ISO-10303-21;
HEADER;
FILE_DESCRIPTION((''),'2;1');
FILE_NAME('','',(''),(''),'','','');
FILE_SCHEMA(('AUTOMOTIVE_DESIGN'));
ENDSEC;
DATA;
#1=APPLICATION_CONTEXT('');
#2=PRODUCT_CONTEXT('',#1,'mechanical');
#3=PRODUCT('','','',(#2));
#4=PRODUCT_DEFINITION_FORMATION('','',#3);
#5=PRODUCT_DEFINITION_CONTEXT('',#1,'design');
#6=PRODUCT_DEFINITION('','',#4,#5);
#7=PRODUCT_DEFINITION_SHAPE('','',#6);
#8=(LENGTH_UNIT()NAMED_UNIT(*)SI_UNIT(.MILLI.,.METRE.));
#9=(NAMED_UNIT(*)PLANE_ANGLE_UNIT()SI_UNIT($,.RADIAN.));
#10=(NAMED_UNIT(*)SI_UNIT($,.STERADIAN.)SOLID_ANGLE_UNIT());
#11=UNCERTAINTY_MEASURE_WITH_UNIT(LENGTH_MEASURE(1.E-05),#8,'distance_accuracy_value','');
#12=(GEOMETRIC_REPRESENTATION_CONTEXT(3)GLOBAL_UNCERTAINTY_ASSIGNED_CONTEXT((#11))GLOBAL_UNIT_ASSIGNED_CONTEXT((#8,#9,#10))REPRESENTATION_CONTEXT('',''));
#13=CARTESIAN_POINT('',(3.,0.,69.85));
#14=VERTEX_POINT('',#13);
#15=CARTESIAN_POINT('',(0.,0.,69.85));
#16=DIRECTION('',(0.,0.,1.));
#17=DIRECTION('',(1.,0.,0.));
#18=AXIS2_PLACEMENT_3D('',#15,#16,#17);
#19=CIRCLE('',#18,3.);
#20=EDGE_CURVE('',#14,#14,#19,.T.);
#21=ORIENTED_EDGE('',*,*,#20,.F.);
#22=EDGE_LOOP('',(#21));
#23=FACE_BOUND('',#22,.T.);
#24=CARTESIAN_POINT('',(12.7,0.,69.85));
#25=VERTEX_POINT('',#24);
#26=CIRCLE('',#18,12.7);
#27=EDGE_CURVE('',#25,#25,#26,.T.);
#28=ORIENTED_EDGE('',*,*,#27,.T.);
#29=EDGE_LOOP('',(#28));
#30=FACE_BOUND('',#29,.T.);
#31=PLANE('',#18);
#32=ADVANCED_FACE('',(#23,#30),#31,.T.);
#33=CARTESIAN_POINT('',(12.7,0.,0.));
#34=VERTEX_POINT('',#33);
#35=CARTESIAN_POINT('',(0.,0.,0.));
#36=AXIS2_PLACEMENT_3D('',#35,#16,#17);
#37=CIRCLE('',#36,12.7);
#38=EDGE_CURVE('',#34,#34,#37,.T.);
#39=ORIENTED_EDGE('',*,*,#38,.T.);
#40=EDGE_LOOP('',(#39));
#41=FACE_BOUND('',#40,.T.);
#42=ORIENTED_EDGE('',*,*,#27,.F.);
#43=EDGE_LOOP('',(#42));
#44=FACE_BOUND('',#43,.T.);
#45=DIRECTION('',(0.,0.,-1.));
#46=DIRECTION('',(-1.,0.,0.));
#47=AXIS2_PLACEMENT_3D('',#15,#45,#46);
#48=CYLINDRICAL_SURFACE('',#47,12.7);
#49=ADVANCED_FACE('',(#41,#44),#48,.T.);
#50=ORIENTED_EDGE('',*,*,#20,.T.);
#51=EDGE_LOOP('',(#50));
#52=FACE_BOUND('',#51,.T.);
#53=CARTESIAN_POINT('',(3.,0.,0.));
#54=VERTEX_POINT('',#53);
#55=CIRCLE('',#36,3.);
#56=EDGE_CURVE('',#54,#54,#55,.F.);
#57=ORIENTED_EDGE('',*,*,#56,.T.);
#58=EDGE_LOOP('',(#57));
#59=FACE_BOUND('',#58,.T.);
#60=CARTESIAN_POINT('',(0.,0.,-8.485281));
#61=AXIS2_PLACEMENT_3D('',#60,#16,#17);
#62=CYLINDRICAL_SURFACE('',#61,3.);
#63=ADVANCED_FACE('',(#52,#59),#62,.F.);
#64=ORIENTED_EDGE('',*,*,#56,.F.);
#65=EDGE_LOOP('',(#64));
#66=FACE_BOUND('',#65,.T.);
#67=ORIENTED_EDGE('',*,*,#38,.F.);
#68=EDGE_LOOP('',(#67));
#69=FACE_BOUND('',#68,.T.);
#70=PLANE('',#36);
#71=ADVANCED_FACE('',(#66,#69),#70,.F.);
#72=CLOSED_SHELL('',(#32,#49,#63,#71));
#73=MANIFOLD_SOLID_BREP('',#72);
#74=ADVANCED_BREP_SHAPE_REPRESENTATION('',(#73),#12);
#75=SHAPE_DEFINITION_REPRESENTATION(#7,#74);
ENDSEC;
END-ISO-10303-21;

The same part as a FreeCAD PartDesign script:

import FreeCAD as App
import Part
import Sketcher
Q = App.Units.Quantity

doc = App.newDocument("Part")
body = doc.addObject("PartDesign::Body", "Body")

# Sketch on XY plane
sketch1 = body.newObject("Sketcher::SketchObject", "Sketch")
sketch1.AttachmentSupport = (doc.getObject("XY_Plane"), [""])
sketch1.MapMode = "FlatFace"
sketch1.addGeometry(Part.Circle(App.Vector(0, 0, 0), App.Vector(0, 0, 1), 13), False)
sketch1.addConstraint(Sketcher.Constraint("Coincident", 0, 3, -1, 1))
sketch1.addConstraint(Sketcher.Constraint("Diameter", 0, Q("1 in")))
pad1 = body.newObject("PartDesign::Pad", "Pad")
pad1.Profile = sketch1
pad1.Length = Q("2.75 in")

# Sketch on XY plane
sketch2 = body.newObject("Sketcher::SketchObject", "Sketch001")
sketch2.AttachmentSupport = (doc.getObject("XY_Plane"), [""])
sketch2.MapMode = "FlatFace"
sketch2.AttachmentOffset = App.Placement(App.Vector(0, 0, 2.75 * 25.4), App.Rotation())
sketch2.addGeometry(Part.Circle(App.Vector(0, 0, 0), App.Vector(0, 0, 1), 3), False)
sketch2.addConstraint(Sketcher.Constraint("Coincident", 0, 3, -1, 1))
sketch2.addConstraint(Sketcher.Constraint("Diameter", 0, 6.0))
pocket1 = body.newObject("PartDesign::Pocket", "Pocket")
pocket1.Profile = sketch2
pocket1.Length = Q("2.75 in")

doc.recompute()
